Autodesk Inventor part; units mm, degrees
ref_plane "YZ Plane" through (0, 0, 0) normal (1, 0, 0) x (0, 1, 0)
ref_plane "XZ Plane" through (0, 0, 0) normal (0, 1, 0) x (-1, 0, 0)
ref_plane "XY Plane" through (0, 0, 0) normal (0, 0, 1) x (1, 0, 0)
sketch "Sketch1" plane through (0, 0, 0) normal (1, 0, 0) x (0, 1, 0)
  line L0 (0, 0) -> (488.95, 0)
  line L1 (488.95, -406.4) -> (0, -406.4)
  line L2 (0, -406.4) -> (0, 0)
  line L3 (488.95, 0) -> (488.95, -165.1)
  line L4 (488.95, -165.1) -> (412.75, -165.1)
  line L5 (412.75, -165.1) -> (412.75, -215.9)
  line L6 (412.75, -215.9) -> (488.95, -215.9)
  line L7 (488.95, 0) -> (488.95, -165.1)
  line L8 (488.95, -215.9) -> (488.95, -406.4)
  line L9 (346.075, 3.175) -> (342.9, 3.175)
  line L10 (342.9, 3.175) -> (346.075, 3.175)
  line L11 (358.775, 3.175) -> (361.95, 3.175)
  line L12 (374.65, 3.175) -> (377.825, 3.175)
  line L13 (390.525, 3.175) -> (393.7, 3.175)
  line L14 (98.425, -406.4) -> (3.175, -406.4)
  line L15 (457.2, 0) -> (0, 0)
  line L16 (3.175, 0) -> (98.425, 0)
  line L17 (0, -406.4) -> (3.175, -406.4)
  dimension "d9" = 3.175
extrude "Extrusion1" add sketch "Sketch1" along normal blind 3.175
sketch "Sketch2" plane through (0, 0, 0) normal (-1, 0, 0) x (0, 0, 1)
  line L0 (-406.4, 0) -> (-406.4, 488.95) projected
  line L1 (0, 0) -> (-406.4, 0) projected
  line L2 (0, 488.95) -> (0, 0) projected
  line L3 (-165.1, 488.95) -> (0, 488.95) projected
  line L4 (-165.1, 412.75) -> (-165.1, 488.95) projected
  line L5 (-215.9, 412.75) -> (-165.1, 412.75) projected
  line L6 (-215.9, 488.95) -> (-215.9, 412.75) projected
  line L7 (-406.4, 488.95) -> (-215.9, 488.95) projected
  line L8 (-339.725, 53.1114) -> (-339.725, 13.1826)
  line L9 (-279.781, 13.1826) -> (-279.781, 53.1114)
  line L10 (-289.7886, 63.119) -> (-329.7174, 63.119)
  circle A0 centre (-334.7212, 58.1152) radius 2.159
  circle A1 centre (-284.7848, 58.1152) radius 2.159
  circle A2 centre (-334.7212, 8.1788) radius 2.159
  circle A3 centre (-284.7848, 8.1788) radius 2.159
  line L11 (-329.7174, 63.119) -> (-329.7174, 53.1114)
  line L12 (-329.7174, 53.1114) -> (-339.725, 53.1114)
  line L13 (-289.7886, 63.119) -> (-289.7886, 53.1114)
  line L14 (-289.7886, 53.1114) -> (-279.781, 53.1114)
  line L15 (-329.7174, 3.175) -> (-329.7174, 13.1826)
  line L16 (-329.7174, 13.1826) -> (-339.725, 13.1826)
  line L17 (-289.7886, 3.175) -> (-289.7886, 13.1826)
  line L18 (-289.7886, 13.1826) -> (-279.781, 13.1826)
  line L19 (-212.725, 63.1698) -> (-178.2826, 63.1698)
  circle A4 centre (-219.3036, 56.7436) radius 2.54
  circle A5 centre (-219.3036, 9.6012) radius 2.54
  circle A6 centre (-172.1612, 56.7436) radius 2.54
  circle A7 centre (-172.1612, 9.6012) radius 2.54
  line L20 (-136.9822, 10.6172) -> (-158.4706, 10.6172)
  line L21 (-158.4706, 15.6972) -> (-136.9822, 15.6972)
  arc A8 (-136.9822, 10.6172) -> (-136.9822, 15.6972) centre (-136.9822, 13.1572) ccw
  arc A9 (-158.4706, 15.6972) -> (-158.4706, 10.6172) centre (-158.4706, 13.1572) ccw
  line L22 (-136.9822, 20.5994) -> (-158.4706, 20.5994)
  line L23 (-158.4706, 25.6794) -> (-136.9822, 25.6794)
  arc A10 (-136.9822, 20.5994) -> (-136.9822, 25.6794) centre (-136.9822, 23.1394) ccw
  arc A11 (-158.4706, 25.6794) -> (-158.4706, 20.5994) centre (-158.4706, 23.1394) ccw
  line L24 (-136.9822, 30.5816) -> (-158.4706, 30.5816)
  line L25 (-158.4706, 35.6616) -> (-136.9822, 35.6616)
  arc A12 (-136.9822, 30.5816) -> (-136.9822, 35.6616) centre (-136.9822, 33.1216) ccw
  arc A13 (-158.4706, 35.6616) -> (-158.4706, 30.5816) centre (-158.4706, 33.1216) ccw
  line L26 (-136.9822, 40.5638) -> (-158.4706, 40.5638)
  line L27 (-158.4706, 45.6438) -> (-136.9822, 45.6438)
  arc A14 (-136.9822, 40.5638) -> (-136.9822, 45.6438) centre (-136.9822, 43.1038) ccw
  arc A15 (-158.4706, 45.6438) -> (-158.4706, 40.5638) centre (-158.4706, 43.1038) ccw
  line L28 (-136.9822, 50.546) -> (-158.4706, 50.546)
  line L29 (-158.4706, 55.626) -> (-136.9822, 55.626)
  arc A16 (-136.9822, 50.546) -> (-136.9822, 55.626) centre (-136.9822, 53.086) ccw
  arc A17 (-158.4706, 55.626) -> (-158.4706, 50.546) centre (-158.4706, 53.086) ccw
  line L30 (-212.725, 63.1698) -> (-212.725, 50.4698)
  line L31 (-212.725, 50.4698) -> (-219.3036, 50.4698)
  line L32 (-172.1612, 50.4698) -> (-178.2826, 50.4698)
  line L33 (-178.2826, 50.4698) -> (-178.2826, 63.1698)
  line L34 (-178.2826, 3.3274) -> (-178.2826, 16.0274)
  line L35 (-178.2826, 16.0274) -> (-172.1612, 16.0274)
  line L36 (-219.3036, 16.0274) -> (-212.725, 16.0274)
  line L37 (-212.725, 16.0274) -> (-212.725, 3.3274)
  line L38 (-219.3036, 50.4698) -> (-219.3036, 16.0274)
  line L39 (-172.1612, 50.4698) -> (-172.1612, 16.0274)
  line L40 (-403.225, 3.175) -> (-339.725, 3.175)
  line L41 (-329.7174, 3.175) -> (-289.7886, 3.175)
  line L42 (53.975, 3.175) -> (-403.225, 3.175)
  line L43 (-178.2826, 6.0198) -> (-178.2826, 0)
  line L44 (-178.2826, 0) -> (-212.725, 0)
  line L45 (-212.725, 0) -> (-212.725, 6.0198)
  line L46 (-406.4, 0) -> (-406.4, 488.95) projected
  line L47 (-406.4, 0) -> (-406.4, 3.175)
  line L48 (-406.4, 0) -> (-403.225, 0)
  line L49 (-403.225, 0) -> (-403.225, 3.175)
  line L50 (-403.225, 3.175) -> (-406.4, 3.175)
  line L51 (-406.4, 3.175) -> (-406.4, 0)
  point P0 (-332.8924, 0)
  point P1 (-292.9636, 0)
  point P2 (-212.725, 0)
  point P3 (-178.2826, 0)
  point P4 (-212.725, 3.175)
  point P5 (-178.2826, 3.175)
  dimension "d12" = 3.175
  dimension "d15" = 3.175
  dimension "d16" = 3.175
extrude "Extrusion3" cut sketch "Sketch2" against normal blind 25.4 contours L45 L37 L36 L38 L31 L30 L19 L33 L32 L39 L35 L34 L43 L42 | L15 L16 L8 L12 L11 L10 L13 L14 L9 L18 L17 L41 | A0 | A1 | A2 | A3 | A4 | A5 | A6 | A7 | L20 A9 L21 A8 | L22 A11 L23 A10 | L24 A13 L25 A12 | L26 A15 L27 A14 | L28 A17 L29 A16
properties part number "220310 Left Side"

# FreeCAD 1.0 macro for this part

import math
import FreeCAD as App
import Part
import Sketcher
from FreeCAD import Vector
Q = App.Units.Quantity

doc = App.newDocument("Part")
body = doc.addObject("PartDesign::Body", "Body")

# Sketch on YZ plane
sketch1 = body.newObject("Sketcher::SketchObject", "Sketch")
sketch1.AttachmentSupport = (doc.getObject("YZ_Plane"), [""])
sketch1.MapMode = "FlatFace"
sketch1.addGeometry(Part.LineSegment(Vector(489, 0, 0), Vector(0, 0, 0)), False)
sketch1.addGeometry(Part.LineSegment(Vector(0, 0, 0), Vector(0, -406, 0)), False)
sketch1.addGeometry(Part.LineSegment(Vector(0, -406, 0), Vector(489, -406, 0)), False)
sketch1.addGeometry(Part.LineSegment(Vector(489, -406, 0), Vector(489, -216, 0)), False)
sketch1.addGeometry(Part.LineSegment(Vector(489, -216, 0), Vector(413, -216, 0)), False)
sketch1.addGeometry(Part.LineSegment(Vector(413, -216, 0), Vector(413, -165, 0)), False)
sketch1.addGeometry(Part.LineSegment(Vector(413, -165, 0), Vector(489, -165, 0)), False)
sketch1.addGeometry(Part.LineSegment(Vector(489, -165, 0), Vector(489, 0, 0)), False)
sketch1.addConstraint(Sketcher.Constraint("Coincident", 0, 2, 1, 1))
sketch1.addConstraint(Sketcher.Constraint("Coincident", 1, 2, 2, 1))
sketch1.addConstraint(Sketcher.Constraint("Coincident", 2, 2, 3, 1))
sketch1.addConstraint(Sketcher.Constraint("Coincident", 3, 2, 4, 1))
sketch1.addConstraint(Sketcher.Constraint("Coincident", 4, 2, 5, 1))
sketch1.addConstraint(Sketcher.Constraint("Coincident", 5, 2, 6, 1))
sketch1.addConstraint(Sketcher.Constraint("Coincident", 6, 2, 7, 1))
sketch1.addConstraint(Sketcher.Constraint("Coincident", 7, 2, 0, 1))
sketch1.addConstraint(Sketcher.Constraint("Horizontal", 0))
sketch1.addConstraint(Sketcher.Constraint("Vertical", 1))
sketch1.addConstraint(Sketcher.Constraint("Horizontal", 2))
sketch1.addConstraint(Sketcher.Constraint("Vertical", 3))
sketch1.addConstraint(Sketcher.Constraint("Horizontal", 4))
sketch1.addConstraint(Sketcher.Constraint("Vertical", 5))
sketch1.addConstraint(Sketcher.Constraint("Horizontal", 6))
sketch1.addConstraint(Sketcher.Constraint("Vertical", 7))
sketch1.addConstraint(Sketcher.Constraint("Coincident", 0, 2, -1, 1))
sketch1.addConstraint(Sketcher.Constraint("Vertical", 3, 2, 6, 2))
sketch1.addConstraint(Sketcher.Constraint("DistanceX", 4, 2, 4, 1, Q("3 in")))
sketch1.addConstraint(Sketcher.Constraint("DistanceY", 1, 2, 1, 1, Q("16 in")))
sketch1.addConstraint(Sketcher.Constraint("DistanceY", 5, 1, 5, 2, Q("2 in")))
sketch1.addConstraint(Sketcher.Constraint("DistanceY", 3, 1, 3, 2, Q("7.5 in")))
sketch1.addConstraint(Sketcher.Constraint("DistanceX", 0, 2, 0, 1, Q("19.25 in")))
pad1 = body.newObject("PartDesign::Pad", "Pad")
pad1.Profile = sketch1
pad1.Length = Q("0.125 in")

# Sketch on YZ plane
sketch2 = body.newObject("Sketcher::SketchObject", "Sketch001")
sketch2.AttachmentSupport = (doc.getObject("YZ_Plane"), [""])
sketch2.MapMode = "FlatFace"
sketch2.addGeometry(Part.LineSegment(Vector(16, -212.7, 0), Vector(3.2, -212.7, 0)), False)
sketch2.addGeometry(Part.LineSegment(Vector(3.2, -212.7, 0), Vector(3.2, -178.3, 0)), False)
sketch2.addGeometry(Part.LineSegment(Vector(3.2, -178.3, 0), Vector(16, -178.3, 0)), False)
sketch2.addGeometry(Part.LineSegment(Vector(16, -178.3, 0), Vector(16, -172.2, 0)), False)
sketch2.addGeometry(Part.LineSegment(Vector(16, -172.2, 0), Vector(50.5, -172.2, 0)), False)
sketch2.addGeometry(Part.LineSegment(Vector(50.5, -172.2, 0), Vector(50.5, -178.3, 0)), False)
sketch2.addGeometry(Part.LineSegment(Vector(50.5, -178.3, 0), Vector(63.2, -178.3, 0)), False)
sketch2.addGeometry(Part.LineSegment(Vector(63.2, -178.3, 0), Vector(63.2, -212.7, 0)), False)
sketch2.addGeometry(Part.LineSegment(Vector(63.2, -212.7, 0), Vector(50.5, -212.7, 0)), False)
sketch2.addGeometry(Part.LineSegment(Vector(50.5, -212.7, 0), Vector(50.5, -219.3, 0)), False)
sketch2.addGeometry(Part.LineSegment(Vector(50.5, -219.3, 0), Vector(16, -219.3, 0)), False)
sketch2.addGeometry(Part.LineSegment(Vector(16, -219.3, 0), Vector(16, -212.7, 0)), False)
sketch2.addGeometry(Part.LineSegment(Vector(13.2, -329.7, 0), Vector(3.2, -329.7, 0)), False)
sketch2.addGeometry(Part.LineSegment(Vector(3.2, -329.7, 0), Vector(3.2, -289.8, 0)), False)
sketch2.addGeometry(Part.LineSegment(Vector(3.2, -289.8, 0), Vector(13.2, -289.8, 0)), False)
sketch2.addGeometry(Part.LineSegment(Vector(13.2, -289.8, 0), Vector(13.2, -279.8, 0)), False)
sketch2.addGeometry(Part.LineSegment(Vector(13.2, -279.8, 0), Vector(53.1, -279.8, 0)), False)
sketch2.addGeometry(Part.LineSegment(Vector(53.1, -279.8, 0), Vector(53.1, -289.8, 0)), False)
sketch2.addGeometry(Part.LineSegment(Vector(53.1, -289.8, 0), Vector(63.1, -289.8, 0)), False)
sketch2.addGeometry(Part.LineSegment(Vector(63.1, -289.8, 0), Vector(63.1, -329.7, 0)), False)
sketch2.addGeometry(Part.LineSegment(Vector(63.1, -329.7, 0), Vector(53.1, -329.7, 0)), False)
sketch2.addGeometry(Part.LineSegment(Vector(53.1, -329.7, 0), Vector(53.1, -339.7, 0)), False)
sketch2.addGeometry(Part.LineSegment(Vector(53.1, -339.7, 0), Vector(13.2, -339.7, 0)), False)
sketch2.addGeometry(Part.LineSegment(Vector(13.2, -339.7, 0), Vector(13.2, -329.7, 0)), False)
sketch2.addGeometry(Part.Circle(Vector(58.1, -334.7, 0), Vector(0, 0, 1), 2.2), False)
sketch2.addGeometry(Part.Circle(Vector(58.1, -284.8, 0), Vector(0, 0, 1), 2.2), False)
sketch2.addGeometry(Part.Circle(Vector(8.2, -334.7, 0), Vector(0, 0, 1), 2.2), False)
sketch2.addGeometry(Part.Circle(Vector(8.2, -284.8, 0), Vector(0, 0, 1), 2.2), False)
sketch2.addGeometry(Part.Circle(Vector(56.7, -219.3, 0), Vector(0, 0, 1), 2.5), False)
sketch2.addGeometry(Part.Circle(Vector(9.6, -219.3, 0), Vector(0, 0, 1), 2.5), False)
sketch2.addGeometry(Part.Circle(Vector(56.7, -172.2, 0), Vector(0, 0, 1), 2.5), False)
sketch2.addGeometry(Part.Circle(Vector(9.6, -172.2, 0), Vector(0, 0, 1), 2.5), False)
sketch2.addGeometry(Part.LineSegment(Vector(10.6, -158.5, 0), Vector(10.6, -137, 0)), False)
sketch2.addGeometry(Part.ArcOfCircle(Part.Circle(Vector(13.2, -137, 0), Vector(0, 0, 1), 2.5), math.radians(0), math.radians(180)), False)
sketch2.addGeometry(Part.LineSegment(Vector(15.7, -137, 0), Vector(15.7, -158.5, 0)), False)
sketch2.addGeometry(Part.ArcOfCircle(Part.Circle(Vector(13.2, -158.5, 0), Vector(0, 0, 1), 2.5), math.radians(180), math.radians(360)), False)
sketch2.addGeometry(Part.LineSegment(Vector(20.6, -158.5, 0), Vector(20.6, -137, 0)), False)
sketch2.addGeometry(Part.ArcOfCircle(Part.Circle(Vector(23.1, -137, 0), Vector(0, 0, 1), 2.5), math.radians(0), math.radians(180)), False)
sketch2.addGeometry(Part.LineSegment(Vector(25.7, -137, 0), Vector(25.7, -158.5, 0)), False)
sketch2.addGeometry(Part.ArcOfCircle(Part.Circle(Vector(23.1, -158.5, 0), Vector(0, 0, 1), 2.5), math.radians(180), math.radians(360)), False)
sketch2.addGeometry(Part.LineSegment(Vector(30.6, -158.5, 0), Vector(30.6, -137, 0)), False)
sketch2.addGeometry(Part.ArcOfCircle(Part.Circle(Vector(33.1, -137, 0), Vector(0, 0, 1), 2.5), math.radians(0), math.radians(180)), False)
sketch2.addGeometry(Part.LineSegment(Vector(35.7, -137, 0), Vector(35.7, -158.5, 0)), False)
sketch2.addGeometry(Part.ArcOfCircle(Part.Circle(Vector(33.1, -158.5, 0), Vector(0, 0, 1), 2.5), math.radians(180), math.radians(360)), False)
sketch2.addGeometry(Part.LineSegment(Vector(40.6, -158.5, 0), Vector(40.6, -137, 0)), False)
sketch2.addGeometry(Part.ArcOfCircle(Part.Circle(Vector(43.1, -137, 0), Vector(0, 0, 1), 2.5), math.radians(0), math.radians(180)), False)
sketch2.addGeometry(Part.LineSegment(Vector(45.6, -137, 0), Vector(45.6, -158.5, 0)), False)
sketch2.addGeometry(Part.ArcOfCircle(Part.Circle(Vector(43.1, -158.5, 0), Vector(0, 0, 1), 2.5), math.radians(180), math.radians(360)), False)
sketch2.addGeometry(Part.LineSegment(Vector(50.5, -158.5, 0), Vector(50.5, -137, 0)), False)
sketch2.addGeometry(Part.ArcOfCircle(Part.Circle(Vector(53.1, -137, 0), Vector(0, 0, 1), 2.5), math.radians(0), math.radians(180)), False)
sketch2.addGeometry(Part.LineSegment(Vector(55.6, -137, 0), Vector(55.6, -158.5, 0)), False)
sketch2.addGeometry(Part.ArcOfCircle(Part.Circle(Vector(53.1, -158.5, 0), Vector(0, 0, 1), 2.5), math.radians(180), math.radians(360)), False)
sketch2.addConstraint(Sketcher.Constraint("Coincident", 0, 2, 1, 1))
sketch2.addConstraint(Sketcher.Constraint("Coincident", 1, 2, 2, 1))
sketch2.addConstraint(Sketcher.Constraint("Coincident", 2, 2, 3, 1))
sketch2.addConstraint(Sketcher.Constraint("Coincident", 3, 2, 4, 1))
sketch2.addConstraint(Sketcher.Constraint("Coincident", 4, 2, 5, 1))
sketch2.addConstraint(Sketcher.Constraint("Coincident", 5, 2, 6, 1))
sketch2.addConstraint(Sketcher.Constraint("Coincident", 6, 2, 7, 1))
sketch2.addConstraint(Sketcher.Constraint("Coincident", 7, 2, 8, 1))
sketch2.addConstraint(Sketcher.Constraint("Coincident", 8, 2, 9, 1))
sketch2.addConstraint(Sketcher.Constraint("Coincident", 9, 2, 10, 1))
sketch2.addConstraint(Sketcher.Constraint("Coincident", 10, 2, 11, 1))
sketch2.addConstraint(Sketcher.Constraint("Coincident", 11, 2, 0, 1))
sketch2.addConstraint(Sketcher.Constraint("Coincident", 12, 2, 13, 1))
sketch2.addConstraint(Sketcher.Constraint("Coincident", 13, 2, 14, 1))
sketch2.addConstraint(Sketcher.Constraint("Coincident", 14, 2, 15, 1))
sketch2.addConstraint(Sketcher.Constraint("Coincident", 15, 2, 16, 1))
sketch2.addConstraint(Sketcher.Constraint("Coincident", 16, 2, 17, 1))
sketch2.addConstraint(Sketcher.Constraint("Coincident", 17, 2, 18, 1))
sketch2.addConstraint(Sketcher.Constraint("Coincident", 18, 2, 19, 1))
sketch2.addConstraint(Sketcher.Constraint("Coincident", 19, 2, 20, 1))
sketch2.addConstraint(Sketcher.Constraint("Coincident", 20, 2, 21, 1))
sketch2.addConstraint(Sketcher.Constraint("Coincident", 21, 2, 22, 1))
sketch2.addConstraint(Sketcher.Constraint("Coincident", 22, 2, 23, 1))
sketch2.addConstraint(Sketcher.Constraint("Coincident", 23, 2, 12, 1))
sketch2.addConstraint(Sketcher.Constraint("Tangent", 32, 2, 33, 2))
sketch2.addConstraint(Sketcher.Constraint("Tangent", 33, 1, 34, 1))
sketch2.addConstraint(Sketcher.Constraint("Tangent", 34, 2, 35, 2))
sketch2.addConstraint(Sketcher.Constraint("Tangent", 35, 1, 32, 1))
sketch2.addConstraint(Sketcher.Constraint("Tangent", 36, 2, 37, 2))
sketch2.addConstraint(Sketcher.Constraint("Tangent", 37, 1, 38, 1))
sketch2.addConstraint(Sketcher.Constraint("Tangent", 38, 2, 39, 2))
sketch2.addConstraint(Sketcher.Constraint("Tangent", 39, 1, 36, 1))
sketch2.addConstraint(Sketcher.Constraint("Tangent", 40, 2, 41, 2))
sketch2.addConstraint(Sketcher.Constraint("Tangent", 41, 1, 42, 1))
sketch2.addConstraint(Sketcher.Constraint("Tangent", 42, 2, 43, 2))
sketch2.addConstraint(Sketcher.Constraint("Tangent", 43, 1, 40, 1))
sketch2.addConstraint(Sketcher.Constraint("Tangent", 44, 2, 45, 2))
sketch2.addConstraint(Sketcher.Constraint("Tangent", 45, 1, 46, 1))
sketch2.addConstraint(Sketcher.Constraint("Tangent", 46, 2, 47, 2))
sketch2.addConstraint(Sketcher.Constraint("Tangent", 47, 1, 44, 1))
sketch2.addConstraint(Sketcher.Constraint("Tangent", 48, 2, 49, 2))
sketch2.addConstraint(Sketcher.Constraint("Tangent", 49, 1, 50, 1))
sketch2.addConstraint(Sketcher.Constraint("Tangent", 50, 2, 51, 2))
sketch2.addConstraint(Sketcher.Constraint("Tangent", 51, 1, 48, 1))
sketch2.addConstraint(Sketcher.Constraint("Horizontal", 0))
sketch2.addConstraint(Sketcher.Constraint("Vertical", 1))
sketch2.addConstraint(Sketcher.Constraint("Horizontal", 2))
sketch2.addConstraint(Sketcher.Constraint("Vertical", 3))
sketch2.addConstraint(Sketcher.Constraint("Horizontal", 4))
sketch2.addConstraint(Sketcher.Constraint("Vertical", 5))
sketch2.addConstraint(Sketcher.Constraint("Horizontal", 6))
sketch2.addConstraint(Sketcher.Constraint("Vertical", 7))
sketch2.addConstraint(Sketcher.Constraint("Horizontal", 8))
sketch2.addConstraint(Sketcher.Constraint("Vertical", 9))
sketch2.addConstraint(Sketcher.Constraint("Horizontal", 10))
sketch2.addConstraint(Sketcher.Constraint("Vertical", 11))
sketch2.addConstraint(Sketcher.Constraint("Horizontal", 12))
sketch2.addConstraint(Sketcher.Constraint("Vertical", 13))
sketch2.addConstraint(Sketcher.Constraint("Horizontal", 14))
sketch2.addConstraint(Sketcher.Constraint("Vertical", 15))
sketch2.addConstraint(Sketcher.Constraint("Horizontal", 16))
sketch2.addConstraint(Sketcher.Constraint("Vertical", 17))
sketch2.addConstraint(Sketcher.Constraint("Horizontal", 18))
sketch2.addConstraint(Sketcher.Constraint("Vertical", 19))
sketch2.addConstraint(Sketcher.Constraint("Horizontal", 20))
sketch2.addConstraint(Sketcher.Constraint("Vertical", 21))
sketch2.addConstraint(Sketcher.Constraint("Horizontal", 22))
sketch2.addConstraint(Sketcher.Constraint("Vertical", 23))
sketch2.addConstraint(Sketcher.Constraint("Vertical", 32))
sketch2.addConstraint(Sketcher.Constraint("Vertical", 34))
sketch2.addConstraint(Sketcher.Constraint("Vertical", 36))
sketch2.addConstraint(Sketcher.Constraint("Vertical", 38))
sketch2.addConstraint(Sketcher.Constraint("Vertical", 40))
sketch2.addConstraint(Sketcher.Constraint("Vertical", 42))
sketch2.addConstraint(Sketcher.Constraint("Vertical", 44))
sketch2.addConstraint(Sketcher.Constraint("Vertical", 46))
sketch2.addConstraint(Sketcher.Constraint("Vertical", 48))
sketch2.addConstraint(Sketcher.Constraint("Vertical", 50))
sketch2.addConstraint(Sketcher.Constraint("Equal", 24, 25))
sketch2.addConstraint(Sketcher.Constraint("Equal", 25, 26))
sketch2.addConstraint(Sketcher.Constraint("Equal", 26, 27))
sketch2.addConstraint(Sketcher.Constraint("Equal", 28, 29))
sketch2.addConstraint(Sketcher.Constraint("Equal", 29, 30))
sketch2.addConstraint(Sketcher.Constraint("Equal", 30, 31))
sketch2.addConstraint(Sketcher.Constraint("Equal", 31, 33))
sketch2.addConstraint(Sketcher.Constraint("Equal", 35, 37))
sketch2.addConstraint(Sketcher.Constraint("Equal", 39, 41))
sketch2.addConstraint(Sketcher.Constraint("Equal", 43, 45))
sketch2.addConstraint(Sketcher.Constraint("Equal", 47, 49))
sketch2.addConstraint(Sketcher.Constraint("Horizontal", 24, 3, 26, 3))
sketch2.addConstraint(Sketcher.Constraint("Horizontal", 25, 3, 27, 3))
sketch2.addConstraint(Sketcher.Constraint("Horizontal", 28, 3, 29, 3))
sketch2.addConstraint(Sketcher.Constraint("Horizontal", 30, 3, 31, 3))
sketch2.addConstraint(Sketcher.Constraint("Horizontal", 33, 3, 37, 3))
sketch2.addConstraint(Sketcher.Constraint("Horizontal", 35, 3, 39, 3))
sketch2.addConstraint(Sketcher.Constraint("Horizontal", 37, 3, 41, 3))
sketch2.addConstraint(Sketcher.Constraint("Horizontal", 39, 3, 43, 3))
sketch2.addConstraint(Sketcher.Constraint("Horizontal", 41, 3, 45, 3))
sketch2.addConstraint(Sketcher.Constraint("Horizontal", 43, 3, 47, 3))
sketch2.addConstraint(Sketcher.Constraint("Horizontal", 45, 3, 49, 3))
sketch2.addConstraint(Sketcher.Constraint("Horizontal", 47, 3, 51, 3))
sketch2.addConstraint(Sketcher.Constraint("Horizontal", 31, 3, 3, 2))
sketch2.addConstraint(Sketcher.Constraint("Horizontal", 2, 2, 5, 2))
sketch2.addConstraint(Sketcher.Constraint("Horizontal", 0, 2, 7, 2))
sketch2.addConstraint(Sketcher.Constraint("Horizontal", 29, 3, 9, 2))
sketch2.addConstraint(Sketcher.Constraint("Horizontal", 14, 2, 17, 2))
sketch2.addConstraint(Sketcher.Constraint("Horizontal", 12, 2, 19, 2))
sketch2.addConstraint(Sketcher.Constraint("Vertical", 24, 3, 25, 3))
sketch2.addConstraint(Sketcher.Constraint("Vertical", 26, 3, 27, 3))
sketch2.addConstraint(Sketcher.Constraint("Vertical", 28, 3, 30, 3))
sketch2.addConstraint(Sketcher.Constraint("Vertical", 29, 3, 31, 3))
sketch2.addConstraint(Sketcher.Constraint("Vertical", 5, 2, 8, 2))
sketch2.addConstraint(Sketcher.Constraint("Vertical", 3, 2, 10, 2))
sketch2.addConstraint(Sketcher.Constraint("Vertical", 1, 2, 12, 2))
sketch2.addConstraint(Sketcher.Constraint("Vertical", 17, 2, 20, 2))
sketch2.addConstraint(Sketcher.Constraint("Vertical", 15, 2, 22, 2))
sketch2.addConstraint(Sketcher.Constraint("Equal", 14, 18))
sketch2.addConstraint(Sketcher.Constraint("Equal", 10, 1))
sketch2.addConstraint(Sketcher.Constraint("Equal", 22, 13))
sketch2.addConstraint(Sketcher.Constraint("Equal", 20, 15))
sketch2.addConstraint(Sketcher.Constraint("Equal", 17, 21))
sketch2.addConstraint(Sketcher.Constraint("Diameter", 28, Q("0.2 in")))
sketch2.addConstraint(Sketcher.Constraint("Diameter", 24, Q("0.17 in")))
sketch2.addConstraint(Sketcher.Constraint("DistanceX", 6, 1, 6, 2, Q("0.5 in")))
sketch2.addConstraint(Sketcher.Constraint("DistanceX", -1, 1, 0, 2, Q("0.125 in")))
sketch2.addConstraint(Sketcher.Constraint("DistanceX", 0, 2, 0, 1, Q("0.506 in")))
sketch2.addConstraint(Sketcher.Constraint("DistanceX", 4, 1, 4, 2, Q("1.356 in")))
sketch2.addConstraint(Sketcher.Constraint("DistanceX", 12, 2, 12, 1, Q("0.394 in")))
sketch2.addConstraint(Sketcher.Constraint("DistanceX", 16, 1, 16, 2, Q("1.572 in")))
sketch2.addConstraint(Sketcher.Constraint("DistanceY", 3, 1, 3, 2, Q("0.241 in")))
sketch2.addConstraint(Sketcher.Constraint("DistanceY", 9, 2, 9, 1, Q("0.259 in")))
sketch2.addConstraint(Sketcher.Constraint("DistanceY", 32, 1, 32, 2, Q("0.846 in")))
sketch2.addConstraint(Sketcher.Constraint("DistanceX", -1, 1, 49, 3, Q("2.09 in")))
sketch2.addConstraint(Sketcher.Constraint("DistanceX", -1, 1, 24, 3, Q("2.288 in")))
sketch2.addConstraint(Sketcher.Constraint("DistanceY", 24, 3, -1, 1, Q("13.178 in")))
sketch2.addConstraint(Sketcher.Constraint("DistanceY", 25, 3, -1, 1, Q("11.212 in")))
sketch2.addConstraint(Sketcher.Constraint("DistanceX", -1, 1, 26, 3, Q("0.322 in")))
sketch2.addConstraint(Sketcher.Constraint("DistanceX", -1, 1, 28, 3, Q("2.234 in")))
sketch2.addConstraint(Sketcher.Constraint("DistanceY", 28, 3, -1, 1, Q("8.634 in")))
sketch2.addConstraint(Sketcher.Constraint("DistanceX", -1, 1, 29, 3, Q("0.378 in")))
sketch2.addConstraint(Sketcher.Constraint("DistanceX", -1, 1, 33, 3, Q("0.518 in")))
sketch2.addConstraint(Sketcher.Constraint("DistanceY", 33, 3, -1, 1, Q("5.393 in")))
sketch2.addConstraint(Sketcher.Constraint("DistanceX", -1, 1, 37, 3, Q("0.911 in")))
sketch2.addConstraint(Sketcher.Constraint("DistanceX", -1, 1, 41, 3, Q("1.304 in")))
sketch2.addConstraint(Sketcher.Constraint("DistanceX", -1, 1, 45, 3, Q("1.697 in")))
sketch2.addConstraint(Sketcher.Constraint("DistanceY", 12, 2, -1, 1, Q("12.981 in")))
pocket1 = body.newObject("PartDesign::Pocket", "Pocket")
pocket1.Profile = sketch2
pocket1.Length = Q("1 in")
pocket1.Reversed = True

doc.recompute()
